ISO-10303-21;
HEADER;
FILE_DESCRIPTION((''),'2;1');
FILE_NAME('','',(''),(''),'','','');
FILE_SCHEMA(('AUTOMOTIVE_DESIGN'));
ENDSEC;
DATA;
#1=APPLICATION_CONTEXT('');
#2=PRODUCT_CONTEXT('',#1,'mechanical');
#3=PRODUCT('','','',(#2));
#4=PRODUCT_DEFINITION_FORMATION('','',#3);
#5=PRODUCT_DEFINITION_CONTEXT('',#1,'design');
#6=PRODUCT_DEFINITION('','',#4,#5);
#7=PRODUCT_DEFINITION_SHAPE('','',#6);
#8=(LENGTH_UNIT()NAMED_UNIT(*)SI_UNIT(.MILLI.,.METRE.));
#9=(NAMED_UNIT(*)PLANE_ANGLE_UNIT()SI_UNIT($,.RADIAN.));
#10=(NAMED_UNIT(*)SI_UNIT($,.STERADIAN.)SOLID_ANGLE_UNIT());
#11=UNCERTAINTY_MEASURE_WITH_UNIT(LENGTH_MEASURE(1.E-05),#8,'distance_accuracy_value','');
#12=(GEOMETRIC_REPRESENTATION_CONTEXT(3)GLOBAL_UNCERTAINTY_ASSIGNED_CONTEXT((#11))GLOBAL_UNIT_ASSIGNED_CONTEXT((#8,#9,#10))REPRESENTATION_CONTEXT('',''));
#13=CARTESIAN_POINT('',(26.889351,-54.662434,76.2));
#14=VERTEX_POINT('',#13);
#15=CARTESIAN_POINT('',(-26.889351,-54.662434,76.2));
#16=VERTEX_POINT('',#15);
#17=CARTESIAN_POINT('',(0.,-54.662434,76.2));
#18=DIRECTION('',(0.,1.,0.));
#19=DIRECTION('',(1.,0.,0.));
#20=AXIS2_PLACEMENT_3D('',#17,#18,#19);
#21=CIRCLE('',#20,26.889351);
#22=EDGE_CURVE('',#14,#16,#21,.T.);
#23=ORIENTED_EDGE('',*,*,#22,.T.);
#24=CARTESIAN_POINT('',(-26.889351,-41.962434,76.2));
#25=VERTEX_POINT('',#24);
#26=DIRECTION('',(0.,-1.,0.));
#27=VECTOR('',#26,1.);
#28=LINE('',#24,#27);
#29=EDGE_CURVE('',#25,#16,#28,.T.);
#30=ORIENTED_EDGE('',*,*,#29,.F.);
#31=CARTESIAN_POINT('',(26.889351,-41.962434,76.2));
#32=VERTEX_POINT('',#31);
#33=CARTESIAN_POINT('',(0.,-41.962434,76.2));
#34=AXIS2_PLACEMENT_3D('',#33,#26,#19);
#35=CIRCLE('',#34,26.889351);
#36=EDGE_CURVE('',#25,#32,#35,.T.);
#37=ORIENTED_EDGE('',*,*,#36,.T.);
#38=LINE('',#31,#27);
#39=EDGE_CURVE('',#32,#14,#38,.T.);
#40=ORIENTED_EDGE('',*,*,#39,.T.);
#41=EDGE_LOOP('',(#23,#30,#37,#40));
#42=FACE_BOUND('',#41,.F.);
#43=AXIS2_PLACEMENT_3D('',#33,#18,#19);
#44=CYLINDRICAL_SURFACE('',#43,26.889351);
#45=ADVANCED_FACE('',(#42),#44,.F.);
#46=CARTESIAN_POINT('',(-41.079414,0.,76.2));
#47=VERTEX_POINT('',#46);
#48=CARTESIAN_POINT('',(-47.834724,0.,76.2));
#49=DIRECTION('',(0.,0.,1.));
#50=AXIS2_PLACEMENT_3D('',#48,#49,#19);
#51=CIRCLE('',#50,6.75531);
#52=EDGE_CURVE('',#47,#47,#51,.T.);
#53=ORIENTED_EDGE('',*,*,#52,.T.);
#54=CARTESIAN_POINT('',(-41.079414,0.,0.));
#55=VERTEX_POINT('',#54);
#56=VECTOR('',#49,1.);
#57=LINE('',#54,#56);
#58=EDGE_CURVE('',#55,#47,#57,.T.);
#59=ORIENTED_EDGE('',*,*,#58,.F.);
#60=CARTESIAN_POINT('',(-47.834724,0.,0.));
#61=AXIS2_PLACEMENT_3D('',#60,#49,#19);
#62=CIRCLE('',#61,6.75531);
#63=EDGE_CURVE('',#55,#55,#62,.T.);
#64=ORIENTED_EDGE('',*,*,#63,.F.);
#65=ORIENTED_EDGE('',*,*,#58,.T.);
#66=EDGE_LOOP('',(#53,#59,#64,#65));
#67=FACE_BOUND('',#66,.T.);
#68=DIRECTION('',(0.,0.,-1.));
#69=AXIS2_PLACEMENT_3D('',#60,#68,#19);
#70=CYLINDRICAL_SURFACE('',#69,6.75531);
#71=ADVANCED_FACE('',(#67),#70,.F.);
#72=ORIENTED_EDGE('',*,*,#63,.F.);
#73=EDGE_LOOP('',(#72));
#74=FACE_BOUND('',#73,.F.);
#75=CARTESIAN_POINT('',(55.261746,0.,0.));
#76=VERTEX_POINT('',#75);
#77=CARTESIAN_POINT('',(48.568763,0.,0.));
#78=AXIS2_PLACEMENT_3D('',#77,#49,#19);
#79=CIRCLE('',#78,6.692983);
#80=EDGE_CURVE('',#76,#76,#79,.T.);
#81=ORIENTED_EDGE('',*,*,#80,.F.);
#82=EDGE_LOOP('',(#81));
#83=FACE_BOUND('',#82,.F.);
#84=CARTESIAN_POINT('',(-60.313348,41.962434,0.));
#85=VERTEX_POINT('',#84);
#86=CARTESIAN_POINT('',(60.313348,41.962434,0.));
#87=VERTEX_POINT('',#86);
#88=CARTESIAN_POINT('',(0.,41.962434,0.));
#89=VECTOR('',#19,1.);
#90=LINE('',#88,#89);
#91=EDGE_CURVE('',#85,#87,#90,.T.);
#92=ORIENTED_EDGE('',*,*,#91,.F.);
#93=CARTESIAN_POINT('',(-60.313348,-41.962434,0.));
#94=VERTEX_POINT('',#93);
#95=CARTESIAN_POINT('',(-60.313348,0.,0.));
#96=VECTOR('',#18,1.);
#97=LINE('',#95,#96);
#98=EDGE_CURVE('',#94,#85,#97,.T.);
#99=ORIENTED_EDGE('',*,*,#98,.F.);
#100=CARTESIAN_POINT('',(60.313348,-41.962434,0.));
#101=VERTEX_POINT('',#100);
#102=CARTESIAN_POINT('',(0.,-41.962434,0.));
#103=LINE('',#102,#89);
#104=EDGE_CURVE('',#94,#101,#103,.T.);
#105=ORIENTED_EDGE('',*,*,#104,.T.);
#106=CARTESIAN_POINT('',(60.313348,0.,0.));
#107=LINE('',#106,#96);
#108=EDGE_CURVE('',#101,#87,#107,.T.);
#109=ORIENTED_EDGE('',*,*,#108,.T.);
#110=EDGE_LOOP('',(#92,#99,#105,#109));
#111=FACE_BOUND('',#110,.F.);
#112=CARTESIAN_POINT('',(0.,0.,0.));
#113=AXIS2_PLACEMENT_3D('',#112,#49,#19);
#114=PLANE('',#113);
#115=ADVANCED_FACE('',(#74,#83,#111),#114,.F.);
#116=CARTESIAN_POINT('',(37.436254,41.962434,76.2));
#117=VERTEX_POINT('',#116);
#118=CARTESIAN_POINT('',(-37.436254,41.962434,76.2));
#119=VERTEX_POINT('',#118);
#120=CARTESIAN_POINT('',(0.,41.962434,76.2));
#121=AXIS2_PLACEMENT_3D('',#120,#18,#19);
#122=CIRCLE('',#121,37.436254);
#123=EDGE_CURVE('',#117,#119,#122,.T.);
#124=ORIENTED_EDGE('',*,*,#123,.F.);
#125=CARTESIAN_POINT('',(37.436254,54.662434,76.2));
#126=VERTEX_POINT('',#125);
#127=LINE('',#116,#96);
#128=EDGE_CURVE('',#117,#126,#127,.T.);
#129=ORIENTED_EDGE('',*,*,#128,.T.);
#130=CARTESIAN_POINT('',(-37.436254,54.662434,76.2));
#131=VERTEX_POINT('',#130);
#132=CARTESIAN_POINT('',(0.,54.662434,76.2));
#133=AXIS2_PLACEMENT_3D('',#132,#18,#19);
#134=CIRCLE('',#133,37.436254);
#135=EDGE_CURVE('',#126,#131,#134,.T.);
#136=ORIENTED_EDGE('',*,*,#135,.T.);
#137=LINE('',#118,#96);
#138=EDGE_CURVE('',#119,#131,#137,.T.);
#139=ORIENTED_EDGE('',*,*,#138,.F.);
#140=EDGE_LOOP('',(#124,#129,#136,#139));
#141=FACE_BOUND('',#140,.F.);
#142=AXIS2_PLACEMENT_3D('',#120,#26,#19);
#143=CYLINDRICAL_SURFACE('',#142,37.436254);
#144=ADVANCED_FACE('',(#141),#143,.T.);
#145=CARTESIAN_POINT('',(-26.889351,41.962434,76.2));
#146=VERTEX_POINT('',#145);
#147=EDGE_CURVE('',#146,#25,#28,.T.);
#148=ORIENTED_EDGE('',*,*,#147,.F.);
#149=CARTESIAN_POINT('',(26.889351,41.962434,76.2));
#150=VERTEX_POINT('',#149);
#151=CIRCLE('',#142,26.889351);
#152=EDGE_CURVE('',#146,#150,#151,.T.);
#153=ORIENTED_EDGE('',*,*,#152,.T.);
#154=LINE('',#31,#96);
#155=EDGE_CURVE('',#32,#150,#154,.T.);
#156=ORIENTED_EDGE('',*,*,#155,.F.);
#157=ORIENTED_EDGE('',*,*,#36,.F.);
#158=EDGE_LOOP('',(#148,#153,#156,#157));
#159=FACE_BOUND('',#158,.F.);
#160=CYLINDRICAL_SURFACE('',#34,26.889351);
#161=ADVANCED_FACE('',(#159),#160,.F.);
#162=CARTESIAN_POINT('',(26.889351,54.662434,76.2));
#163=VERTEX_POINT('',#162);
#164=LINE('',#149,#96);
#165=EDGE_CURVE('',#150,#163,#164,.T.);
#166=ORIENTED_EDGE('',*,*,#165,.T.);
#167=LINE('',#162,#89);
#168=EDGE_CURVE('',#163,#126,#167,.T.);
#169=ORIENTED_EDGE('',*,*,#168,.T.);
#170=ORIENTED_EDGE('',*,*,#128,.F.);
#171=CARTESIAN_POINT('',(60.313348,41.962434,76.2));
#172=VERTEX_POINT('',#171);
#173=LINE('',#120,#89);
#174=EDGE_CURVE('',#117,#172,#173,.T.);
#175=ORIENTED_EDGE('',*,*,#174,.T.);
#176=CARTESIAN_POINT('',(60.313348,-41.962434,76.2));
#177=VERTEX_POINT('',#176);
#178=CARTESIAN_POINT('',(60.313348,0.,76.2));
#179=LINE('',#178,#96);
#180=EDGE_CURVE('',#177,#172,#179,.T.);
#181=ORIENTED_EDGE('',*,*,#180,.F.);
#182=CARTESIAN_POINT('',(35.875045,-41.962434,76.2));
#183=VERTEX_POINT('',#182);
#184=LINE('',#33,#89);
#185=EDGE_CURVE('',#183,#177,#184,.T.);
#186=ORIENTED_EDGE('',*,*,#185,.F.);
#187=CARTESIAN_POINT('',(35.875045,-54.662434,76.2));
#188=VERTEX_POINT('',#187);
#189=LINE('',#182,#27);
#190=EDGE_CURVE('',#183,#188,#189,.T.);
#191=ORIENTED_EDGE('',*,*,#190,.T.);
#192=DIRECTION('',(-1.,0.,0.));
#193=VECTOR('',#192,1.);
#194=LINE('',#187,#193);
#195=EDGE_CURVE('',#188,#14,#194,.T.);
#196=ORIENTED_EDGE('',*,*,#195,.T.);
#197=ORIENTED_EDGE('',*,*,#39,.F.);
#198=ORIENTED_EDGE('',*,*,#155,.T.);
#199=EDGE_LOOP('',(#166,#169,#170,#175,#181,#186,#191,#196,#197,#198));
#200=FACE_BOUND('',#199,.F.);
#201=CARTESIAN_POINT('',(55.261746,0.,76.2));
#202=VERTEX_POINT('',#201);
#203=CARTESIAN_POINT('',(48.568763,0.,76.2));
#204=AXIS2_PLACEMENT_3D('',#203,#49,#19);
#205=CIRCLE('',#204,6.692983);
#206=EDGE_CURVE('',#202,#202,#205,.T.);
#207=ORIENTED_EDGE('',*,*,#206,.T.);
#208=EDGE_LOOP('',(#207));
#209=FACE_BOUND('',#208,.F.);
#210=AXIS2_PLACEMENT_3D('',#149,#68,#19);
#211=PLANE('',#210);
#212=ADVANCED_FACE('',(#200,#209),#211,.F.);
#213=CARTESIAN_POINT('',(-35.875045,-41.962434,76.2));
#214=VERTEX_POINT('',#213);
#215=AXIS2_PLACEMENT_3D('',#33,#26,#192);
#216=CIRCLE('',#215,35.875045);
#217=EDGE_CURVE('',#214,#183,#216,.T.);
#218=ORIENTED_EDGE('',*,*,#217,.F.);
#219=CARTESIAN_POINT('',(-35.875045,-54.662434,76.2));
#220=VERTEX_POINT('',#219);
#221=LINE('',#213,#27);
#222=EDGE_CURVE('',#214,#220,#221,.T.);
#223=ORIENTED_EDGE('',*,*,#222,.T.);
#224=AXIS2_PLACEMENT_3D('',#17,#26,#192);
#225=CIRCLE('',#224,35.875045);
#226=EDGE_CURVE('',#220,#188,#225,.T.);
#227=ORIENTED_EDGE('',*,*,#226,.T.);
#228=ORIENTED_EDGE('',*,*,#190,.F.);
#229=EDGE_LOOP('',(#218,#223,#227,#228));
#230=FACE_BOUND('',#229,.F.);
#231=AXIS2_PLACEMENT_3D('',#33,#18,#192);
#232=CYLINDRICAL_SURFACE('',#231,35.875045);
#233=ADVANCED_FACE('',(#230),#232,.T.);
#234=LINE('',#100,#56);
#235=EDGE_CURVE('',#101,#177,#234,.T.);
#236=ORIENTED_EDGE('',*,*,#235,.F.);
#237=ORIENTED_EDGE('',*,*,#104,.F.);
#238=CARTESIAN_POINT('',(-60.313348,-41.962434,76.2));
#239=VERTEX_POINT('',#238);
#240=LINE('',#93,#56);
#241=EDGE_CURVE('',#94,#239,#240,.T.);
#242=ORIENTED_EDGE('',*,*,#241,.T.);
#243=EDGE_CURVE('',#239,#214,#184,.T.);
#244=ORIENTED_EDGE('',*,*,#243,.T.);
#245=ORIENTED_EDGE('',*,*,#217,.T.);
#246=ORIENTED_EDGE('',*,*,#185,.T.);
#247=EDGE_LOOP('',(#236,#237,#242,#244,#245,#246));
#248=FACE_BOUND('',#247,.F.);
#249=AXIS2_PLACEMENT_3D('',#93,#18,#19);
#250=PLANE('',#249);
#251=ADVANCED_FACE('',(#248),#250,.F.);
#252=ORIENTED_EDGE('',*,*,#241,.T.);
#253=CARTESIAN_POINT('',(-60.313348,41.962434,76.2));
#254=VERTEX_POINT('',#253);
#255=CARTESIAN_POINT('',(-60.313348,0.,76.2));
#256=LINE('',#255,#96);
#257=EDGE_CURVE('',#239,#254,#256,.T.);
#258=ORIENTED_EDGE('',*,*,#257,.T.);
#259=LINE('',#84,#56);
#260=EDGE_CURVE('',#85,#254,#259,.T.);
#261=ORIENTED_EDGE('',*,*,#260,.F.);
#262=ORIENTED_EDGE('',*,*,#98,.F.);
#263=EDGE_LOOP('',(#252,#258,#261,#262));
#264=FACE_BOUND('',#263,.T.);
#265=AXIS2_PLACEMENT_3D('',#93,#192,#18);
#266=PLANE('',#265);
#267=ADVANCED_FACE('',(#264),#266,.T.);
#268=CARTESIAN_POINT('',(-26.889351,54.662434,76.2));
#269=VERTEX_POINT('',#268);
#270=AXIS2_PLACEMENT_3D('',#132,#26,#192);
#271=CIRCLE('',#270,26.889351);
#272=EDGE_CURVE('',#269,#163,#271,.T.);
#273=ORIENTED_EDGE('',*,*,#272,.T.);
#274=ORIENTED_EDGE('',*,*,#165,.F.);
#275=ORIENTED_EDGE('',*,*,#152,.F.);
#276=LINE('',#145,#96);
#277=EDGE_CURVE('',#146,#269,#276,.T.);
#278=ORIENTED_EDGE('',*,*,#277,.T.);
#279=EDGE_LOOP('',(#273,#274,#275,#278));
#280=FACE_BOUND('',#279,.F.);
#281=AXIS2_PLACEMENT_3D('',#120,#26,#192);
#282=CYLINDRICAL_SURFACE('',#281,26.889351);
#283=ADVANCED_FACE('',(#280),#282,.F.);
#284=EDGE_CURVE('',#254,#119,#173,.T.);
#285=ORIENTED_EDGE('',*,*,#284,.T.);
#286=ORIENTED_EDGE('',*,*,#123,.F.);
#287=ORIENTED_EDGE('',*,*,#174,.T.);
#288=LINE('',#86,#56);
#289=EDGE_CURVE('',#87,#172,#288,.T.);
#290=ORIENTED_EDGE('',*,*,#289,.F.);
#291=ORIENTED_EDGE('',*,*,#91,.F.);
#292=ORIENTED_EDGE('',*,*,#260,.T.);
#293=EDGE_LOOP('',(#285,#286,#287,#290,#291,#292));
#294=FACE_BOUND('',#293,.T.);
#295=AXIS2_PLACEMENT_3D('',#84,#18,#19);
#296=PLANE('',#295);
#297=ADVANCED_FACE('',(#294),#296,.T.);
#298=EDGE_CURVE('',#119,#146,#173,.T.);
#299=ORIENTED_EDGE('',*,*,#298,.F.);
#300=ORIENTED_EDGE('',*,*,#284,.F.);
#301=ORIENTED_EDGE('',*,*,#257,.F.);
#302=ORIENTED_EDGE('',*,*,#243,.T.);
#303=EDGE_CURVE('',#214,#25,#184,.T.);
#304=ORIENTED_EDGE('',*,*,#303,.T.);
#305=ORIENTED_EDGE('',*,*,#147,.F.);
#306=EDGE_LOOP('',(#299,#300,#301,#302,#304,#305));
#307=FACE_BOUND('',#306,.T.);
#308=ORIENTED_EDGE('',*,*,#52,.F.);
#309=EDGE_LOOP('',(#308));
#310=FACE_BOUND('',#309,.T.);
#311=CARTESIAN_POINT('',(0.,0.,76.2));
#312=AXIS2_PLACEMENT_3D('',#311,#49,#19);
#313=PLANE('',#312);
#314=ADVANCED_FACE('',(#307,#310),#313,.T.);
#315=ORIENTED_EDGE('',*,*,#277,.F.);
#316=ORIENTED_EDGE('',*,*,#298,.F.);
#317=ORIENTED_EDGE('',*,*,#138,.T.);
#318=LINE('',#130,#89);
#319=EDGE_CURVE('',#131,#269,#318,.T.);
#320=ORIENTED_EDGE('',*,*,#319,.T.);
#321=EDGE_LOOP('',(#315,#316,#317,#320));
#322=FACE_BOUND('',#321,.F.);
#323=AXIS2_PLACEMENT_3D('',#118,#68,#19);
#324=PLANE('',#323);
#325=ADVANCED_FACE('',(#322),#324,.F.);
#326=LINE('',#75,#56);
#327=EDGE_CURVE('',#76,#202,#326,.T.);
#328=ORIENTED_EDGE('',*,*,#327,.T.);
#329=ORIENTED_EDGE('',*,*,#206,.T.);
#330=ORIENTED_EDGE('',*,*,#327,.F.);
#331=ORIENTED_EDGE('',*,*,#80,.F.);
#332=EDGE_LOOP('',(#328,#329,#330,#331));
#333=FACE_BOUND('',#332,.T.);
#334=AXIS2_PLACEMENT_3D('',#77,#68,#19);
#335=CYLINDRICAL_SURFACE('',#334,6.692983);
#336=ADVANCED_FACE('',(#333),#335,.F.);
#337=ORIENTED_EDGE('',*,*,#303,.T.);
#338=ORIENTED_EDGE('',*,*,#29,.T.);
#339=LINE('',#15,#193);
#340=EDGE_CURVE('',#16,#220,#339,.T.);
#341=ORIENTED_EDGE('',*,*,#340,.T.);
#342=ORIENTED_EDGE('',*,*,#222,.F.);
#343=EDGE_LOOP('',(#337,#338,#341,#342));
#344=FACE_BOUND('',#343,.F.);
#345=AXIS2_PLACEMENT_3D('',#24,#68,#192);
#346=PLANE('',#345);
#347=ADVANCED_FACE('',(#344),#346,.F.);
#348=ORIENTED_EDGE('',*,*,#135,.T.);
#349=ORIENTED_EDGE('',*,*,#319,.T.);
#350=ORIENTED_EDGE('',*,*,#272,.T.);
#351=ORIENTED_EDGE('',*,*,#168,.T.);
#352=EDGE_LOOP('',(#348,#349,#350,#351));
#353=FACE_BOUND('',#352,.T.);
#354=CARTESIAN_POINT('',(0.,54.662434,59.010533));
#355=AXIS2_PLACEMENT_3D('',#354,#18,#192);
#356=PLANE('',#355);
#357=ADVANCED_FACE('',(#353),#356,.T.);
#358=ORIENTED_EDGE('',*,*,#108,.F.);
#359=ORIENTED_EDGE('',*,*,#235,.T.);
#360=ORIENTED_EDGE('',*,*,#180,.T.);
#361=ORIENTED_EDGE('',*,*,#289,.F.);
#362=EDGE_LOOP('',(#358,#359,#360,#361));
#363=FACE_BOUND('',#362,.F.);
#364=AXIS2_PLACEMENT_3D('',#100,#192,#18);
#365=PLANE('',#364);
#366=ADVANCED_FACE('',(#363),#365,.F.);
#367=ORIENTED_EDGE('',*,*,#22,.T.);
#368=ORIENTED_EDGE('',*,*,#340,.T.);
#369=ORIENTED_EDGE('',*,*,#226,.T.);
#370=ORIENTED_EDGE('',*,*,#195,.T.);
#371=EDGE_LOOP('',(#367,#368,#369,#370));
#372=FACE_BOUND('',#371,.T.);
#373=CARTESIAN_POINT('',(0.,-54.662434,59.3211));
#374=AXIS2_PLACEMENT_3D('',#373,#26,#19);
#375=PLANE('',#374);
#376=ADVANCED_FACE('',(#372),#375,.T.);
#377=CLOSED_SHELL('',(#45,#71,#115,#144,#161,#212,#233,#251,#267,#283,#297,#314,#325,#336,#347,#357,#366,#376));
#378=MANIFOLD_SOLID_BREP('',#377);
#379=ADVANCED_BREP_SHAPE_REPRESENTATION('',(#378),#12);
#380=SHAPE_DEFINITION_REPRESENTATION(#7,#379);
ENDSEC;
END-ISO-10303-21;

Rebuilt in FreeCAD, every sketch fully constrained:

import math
import FreeCAD as App
import Part
import Sketcher
Q = App.Units.Quantity

doc = App.newDocument("Part")
body = doc.addObject("PartDesign::Body", "Body")

sketch1 = body.newObject("Sketcher::SketchObject", "Sketch")
sketch1.AttachmentSupport = (doc.getObject("XY_Plane"), [""])
sketch1.MapMode = "FlatFace"
sketch1.addGeometry([
    Part.LineSegment(App.Vector(-60, 42, 0), App.Vector(-60, -42, 0)),
    Part.LineSegment(App.Vector(-60, -42, 0), App.Vector(60, -42, 0)),
    Part.LineSegment(App.Vector(60, -42, 0), App.Vector(60, 42, 0)),
    Part.LineSegment(App.Vector(60, 42, 0), App.Vector(-60, 42, 0)),
    Part.Circle(App.Vector(-48, 0, 0), App.Vector(0, 0, 1), 7),
    Part.Circle(App.Vector(49, 0, 0), App.Vector(0, 0, 1), 7),
], False)
sketch1.addConstraint([
    Sketcher.Constraint("Coincident", 0, 2, 1, 1),
    Sketcher.Constraint("Coincident", 1, 2, 2, 1),
    Sketcher.Constraint("Coincident", 2, 2, 3, 1),
    Sketcher.Constraint("Coincident", 3, 2, 0, 1),
    Sketcher.Constraint("Vertical", 0),
    Sketcher.Constraint("Horizontal", 1),
    Sketcher.Constraint("Vertical", 2),
    Sketcher.Constraint("Horizontal", 3),
    Sketcher.Constraint("Symmetric", 0, 2, 2, 2, -1, 1),
    Sketcher.Constraint("PointOnObject", 4, 3, -1),
    Sketcher.Constraint("PointOnObject", 5, 3, -1),
    Sketcher.Constraint("Diameter", 4, Q("13.51062 mm")),
    Sketcher.Constraint("Diameter", 5, Q("13.385966 mm")),
    Sketcher.Constraint("DistanceY", 0, 2, 0, 1, Q("83.924868 mm")),
    Sketcher.Constraint("DistanceX", 1, 1, 1, 2, Q("120.626696 mm")),
    Sketcher.Constraint("DistanceX", 0, 2, 5, 3, Q("108.882111 mm")),
    Sketcher.Constraint("DistanceX", 4, 3, 1, 2, Q("108.148072 mm")),
])
pad1 = body.newObject("PartDesign::Pad", "Pad")
pad1.Profile = sketch1
pad1.Length = Q("3 in")

sketch2 = body.newObject("Sketcher::SketchObject", "Sketch001")
sketch2.AttachmentSupport = (doc.getObject("XZ_Plane"), [""])
sketch2.MapMode = "FlatFace"
sketch2.AttachmentOffset = App.Placement(App.Vector(0, 0, 41.962434), App.Rotation())
sketch2.addGeometry(Part.Circle(App.Vector(0, 76, 0), App.Vector(0, 0, 1), 27), False)
sketch2.addConstraint([
    Sketcher.Constraint("PointOnObject", 0, 3, -2),
    Sketcher.Constraint("DistanceY", -1, 1, 0, 3, Q("3 in")),
    Sketcher.Constraint("Diameter", 0, Q("53.778702 mm")),
])
pocket1 = body.newObject("PartDesign::Pocket", "Pocket")
pocket1.Profile = sketch2
pocket1.Length = Q("4 in")

sketch3 = body.newObject("Sketcher::SketchObject", "Sketch002")
sketch3.AttachmentSupport = (doc.getObject("XZ_Plane"), [""])
sketch3.MapMode = "FlatFace"
sketch3.AttachmentOffset = App.Placement(App.Vector(0, 0, 41.962434), App.Rotation())
sketch3.addGeometry([
    Part.LineSegment(App.Vector(-27, 76, 0), App.Vector(-36, 76, 0)),
    Part.ArcOfCircle(Part.Circle(App.Vector(0, 76, 0), App.Vector(0, 0, 1), 36), math.radians(180), math.radians(360)),
    Part.LineSegment(App.Vector(36, 76, 0), App.Vector(27, 76, 0)),
    Part.ArcOfCircle(Part.Circle(App.Vector(0, 76, 0), App.Vector(0, 0, 1), 27), math.radians(180), math.radians(360)),
], False)
sketch3.addConstraint([
    Sketcher.Constraint("Coincident", 0, 2, 1, 1),
    Sketcher.Constraint("Coincident", 1, 2, 2, 1),
    Sketcher.Constraint("Coincident", 2, 2, 3, 2),
    Sketcher.Constraint("Coincident", 3, 1, 0, 1),
    Sketcher.Constraint("Horizontal", 0),
    Sketcher.Constraint("Horizontal", 2),
    Sketcher.Constraint("Coincident", 3, 3, 1, 3),
    Sketcher.Constraint("Symmetric", 0, 2, 1, 2, -2),
    Sketcher.Constraint("Horizontal", 3, 3, 0, 2),
    Sketcher.Constraint("DistanceY", -1, 1, 1, 3, Q("3 in")),
    Sketcher.Constraint("Radius", 3, Q("26.889351 mm")),
    Sketcher.Constraint("Radius", 1, Q("35.875045 mm")),
])
pad2 = body.newObject("PartDesign::Pad", "Pad001")
pad2.Profile = sketch3
pad2.Length = Q("0.5 in")

sketch4 = body.newObject("Sketcher::SketchObject", "Sketch003")
sketch4.AttachmentSupport = (doc.getObject("XZ_Plane"), [""])
sketch4.MapMode = "FlatFace"
sketch4.AttachmentOffset = App.Placement(App.Vector(0, 0, -41.962434), App.Rotation())
sketch4.addGeometry([
    Part.LineSegment(App.Vector(27, 76, 0), App.Vector(37, 76, 0)),
    Part.ArcOfCircle(Part.Circle(App.Vector(0, 76, 0), App.Vector(0, 0, 1), 37), math.radians(180), math.radians(360)),
    Part.LineSegment(App.Vector(-37, 76, 0), App.Vector(-27, 76, 0)),
    Part.ArcOfCircle(Part.Circle(App.Vector(0, 76, 0), App.Vector(0, 0, 1), 27), math.radians(180), math.radians(360)),
], False)
sketch4.addConstraint([
    Sketcher.Constraint("Coincident", 0, 2, 1, 2),
    Sketcher.Constraint("Coincident", 1, 1, 2, 1),
    Sketcher.Constraint("Coincident", 2, 2, 3, 1),
    Sketcher.Constraint("Coincident", 3, 2, 0, 1),
    Sketcher.Constraint("Horizontal", 0),
    Sketcher.Constraint("Horizontal", 2),
    Sketcher.Constraint("Coincident", 3, 3, 1, 3),
    Sketcher.Constraint("Symmetric", 0, 2, 1, 1, -2),
    Sketcher.Constraint("Horizontal", 3, 3, 0, 2),
    Sketcher.Constraint("DistanceY", -1, 1, 1, 3, Q("3 in")),
    Sketcher.Constraint("Radius", 3, Q("26.889351 mm")),
    Sketcher.Constraint("Radius", 1, Q("37.436254 mm")),
])
pad3 = body.newObject("PartDesign::Pad", "Pad002")
pad3.Profile = sketch4
pad3.Length = Q("0.5 in")
pad3.Reversed = True

doc.recompute()
